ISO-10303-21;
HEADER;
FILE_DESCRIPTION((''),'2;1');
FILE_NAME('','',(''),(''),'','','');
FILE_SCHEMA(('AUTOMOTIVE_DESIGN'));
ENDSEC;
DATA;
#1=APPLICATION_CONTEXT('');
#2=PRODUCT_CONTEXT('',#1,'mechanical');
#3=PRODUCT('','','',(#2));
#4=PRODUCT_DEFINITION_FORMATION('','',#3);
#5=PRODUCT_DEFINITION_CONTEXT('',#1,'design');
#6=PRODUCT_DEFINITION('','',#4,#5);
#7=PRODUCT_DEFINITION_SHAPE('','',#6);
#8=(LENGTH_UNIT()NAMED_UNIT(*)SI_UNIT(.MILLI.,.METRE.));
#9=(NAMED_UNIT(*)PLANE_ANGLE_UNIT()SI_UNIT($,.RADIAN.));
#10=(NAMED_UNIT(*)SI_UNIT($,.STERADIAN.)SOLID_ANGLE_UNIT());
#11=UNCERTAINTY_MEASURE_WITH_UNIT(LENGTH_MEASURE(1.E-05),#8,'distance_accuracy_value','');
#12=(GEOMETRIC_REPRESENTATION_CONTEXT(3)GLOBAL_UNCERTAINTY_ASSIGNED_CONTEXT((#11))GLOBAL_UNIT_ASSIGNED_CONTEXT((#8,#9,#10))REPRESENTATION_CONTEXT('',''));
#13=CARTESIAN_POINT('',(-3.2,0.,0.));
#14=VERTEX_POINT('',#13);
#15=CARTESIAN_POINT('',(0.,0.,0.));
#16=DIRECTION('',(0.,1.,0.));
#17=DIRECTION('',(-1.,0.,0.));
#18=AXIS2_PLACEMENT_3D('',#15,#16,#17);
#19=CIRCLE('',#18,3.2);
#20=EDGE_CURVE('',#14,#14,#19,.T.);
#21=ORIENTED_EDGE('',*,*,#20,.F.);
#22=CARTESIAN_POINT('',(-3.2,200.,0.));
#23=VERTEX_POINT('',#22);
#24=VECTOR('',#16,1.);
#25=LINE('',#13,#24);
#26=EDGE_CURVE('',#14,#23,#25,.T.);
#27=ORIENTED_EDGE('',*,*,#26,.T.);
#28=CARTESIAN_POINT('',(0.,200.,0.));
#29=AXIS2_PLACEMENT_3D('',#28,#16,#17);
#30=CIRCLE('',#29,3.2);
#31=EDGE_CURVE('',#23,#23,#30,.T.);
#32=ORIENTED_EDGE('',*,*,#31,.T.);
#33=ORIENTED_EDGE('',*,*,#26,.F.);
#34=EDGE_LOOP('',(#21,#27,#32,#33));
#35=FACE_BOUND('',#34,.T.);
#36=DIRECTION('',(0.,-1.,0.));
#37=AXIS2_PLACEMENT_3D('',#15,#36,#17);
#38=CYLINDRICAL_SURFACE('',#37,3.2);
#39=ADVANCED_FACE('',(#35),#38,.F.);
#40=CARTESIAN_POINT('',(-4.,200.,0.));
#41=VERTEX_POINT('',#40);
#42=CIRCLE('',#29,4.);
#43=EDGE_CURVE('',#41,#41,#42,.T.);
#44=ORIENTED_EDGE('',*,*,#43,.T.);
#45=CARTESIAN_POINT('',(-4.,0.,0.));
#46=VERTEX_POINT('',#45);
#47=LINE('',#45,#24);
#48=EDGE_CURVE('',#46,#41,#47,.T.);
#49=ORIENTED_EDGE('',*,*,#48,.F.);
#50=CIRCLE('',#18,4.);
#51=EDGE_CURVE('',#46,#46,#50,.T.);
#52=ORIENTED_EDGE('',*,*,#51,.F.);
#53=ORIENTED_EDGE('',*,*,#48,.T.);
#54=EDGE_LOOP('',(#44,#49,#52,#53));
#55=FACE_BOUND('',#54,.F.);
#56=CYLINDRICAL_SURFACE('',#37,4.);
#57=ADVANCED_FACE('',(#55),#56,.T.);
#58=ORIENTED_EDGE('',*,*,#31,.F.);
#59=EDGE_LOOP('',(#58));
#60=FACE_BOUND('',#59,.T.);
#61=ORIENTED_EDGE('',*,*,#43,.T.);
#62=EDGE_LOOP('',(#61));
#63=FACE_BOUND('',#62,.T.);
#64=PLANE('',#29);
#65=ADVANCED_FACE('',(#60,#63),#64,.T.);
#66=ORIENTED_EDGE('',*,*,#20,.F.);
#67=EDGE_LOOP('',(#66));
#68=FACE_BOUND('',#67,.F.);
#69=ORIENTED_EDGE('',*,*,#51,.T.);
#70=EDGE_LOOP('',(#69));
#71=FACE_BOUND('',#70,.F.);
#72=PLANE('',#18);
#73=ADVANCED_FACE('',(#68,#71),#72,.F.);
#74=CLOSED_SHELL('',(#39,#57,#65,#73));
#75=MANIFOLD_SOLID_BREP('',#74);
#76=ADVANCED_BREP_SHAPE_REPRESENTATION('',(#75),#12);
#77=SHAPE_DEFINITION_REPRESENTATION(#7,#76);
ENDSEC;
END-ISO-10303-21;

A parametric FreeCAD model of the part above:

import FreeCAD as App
import Part
import Sketcher

V = App.Vector
Q = App.Units.Quantity

doc = App.newDocument("Part")
params = doc.addObject("Spreadsheet::Sheet", "Params")
for row, (alias, value) in enumerate([
    ("sketch1_diameter", "8 mm"),
    ("sketch1_diameter2", "6.4 mm"),
    ("pad1_length", "200 mm"),
], start=1):
    params.set(f"A{row}", alias)
    params.set(f"B{row}", "=" + value)
    params.setAlias(f"B{row}", alias)

body = doc.addObject("PartDesign::Body", "Body")

sketch1 = body.newObject("Sketcher::SketchObject", "Sketch")
sketch1.AttachmentSupport = (doc.getObject("XZ_Plane"), [""])
sketch1.MapMode = "FlatFace"
sketch1.addGeometry(Part.Circle(V(0, 0, 0), V(0, 0, 1), 4), False)
sketch1.addGeometry(Part.Circle(V(0, 0, 0), V(0, 0, 1), 3.2), False)
sketch1.addConstraint(Sketcher.Constraint("Coincident", 0, 3, -1, 1))
sketch1.addConstraint(Sketcher.Constraint("Coincident", 1, 3, -1, 1))
sketch1.addConstraint(Sketcher.Constraint("Diameter", 0, Q("8 mm")))
sketch1.addConstraint(Sketcher.Constraint("Diameter", 1, Q("6.4 mm")))
sketch1.setExpression("Constraints[2]", "Params.sketch1_diameter")
sketch1.setExpression("Constraints[3]", "Params.sketch1_diameter2")
pad1 = body.newObject("PartDesign::Pad", "Pad")
pad1.Profile = sketch1
pad1.setExpression("Length", "Params.pad1_length")
pad1.Reversed = True

doc.recompute()
